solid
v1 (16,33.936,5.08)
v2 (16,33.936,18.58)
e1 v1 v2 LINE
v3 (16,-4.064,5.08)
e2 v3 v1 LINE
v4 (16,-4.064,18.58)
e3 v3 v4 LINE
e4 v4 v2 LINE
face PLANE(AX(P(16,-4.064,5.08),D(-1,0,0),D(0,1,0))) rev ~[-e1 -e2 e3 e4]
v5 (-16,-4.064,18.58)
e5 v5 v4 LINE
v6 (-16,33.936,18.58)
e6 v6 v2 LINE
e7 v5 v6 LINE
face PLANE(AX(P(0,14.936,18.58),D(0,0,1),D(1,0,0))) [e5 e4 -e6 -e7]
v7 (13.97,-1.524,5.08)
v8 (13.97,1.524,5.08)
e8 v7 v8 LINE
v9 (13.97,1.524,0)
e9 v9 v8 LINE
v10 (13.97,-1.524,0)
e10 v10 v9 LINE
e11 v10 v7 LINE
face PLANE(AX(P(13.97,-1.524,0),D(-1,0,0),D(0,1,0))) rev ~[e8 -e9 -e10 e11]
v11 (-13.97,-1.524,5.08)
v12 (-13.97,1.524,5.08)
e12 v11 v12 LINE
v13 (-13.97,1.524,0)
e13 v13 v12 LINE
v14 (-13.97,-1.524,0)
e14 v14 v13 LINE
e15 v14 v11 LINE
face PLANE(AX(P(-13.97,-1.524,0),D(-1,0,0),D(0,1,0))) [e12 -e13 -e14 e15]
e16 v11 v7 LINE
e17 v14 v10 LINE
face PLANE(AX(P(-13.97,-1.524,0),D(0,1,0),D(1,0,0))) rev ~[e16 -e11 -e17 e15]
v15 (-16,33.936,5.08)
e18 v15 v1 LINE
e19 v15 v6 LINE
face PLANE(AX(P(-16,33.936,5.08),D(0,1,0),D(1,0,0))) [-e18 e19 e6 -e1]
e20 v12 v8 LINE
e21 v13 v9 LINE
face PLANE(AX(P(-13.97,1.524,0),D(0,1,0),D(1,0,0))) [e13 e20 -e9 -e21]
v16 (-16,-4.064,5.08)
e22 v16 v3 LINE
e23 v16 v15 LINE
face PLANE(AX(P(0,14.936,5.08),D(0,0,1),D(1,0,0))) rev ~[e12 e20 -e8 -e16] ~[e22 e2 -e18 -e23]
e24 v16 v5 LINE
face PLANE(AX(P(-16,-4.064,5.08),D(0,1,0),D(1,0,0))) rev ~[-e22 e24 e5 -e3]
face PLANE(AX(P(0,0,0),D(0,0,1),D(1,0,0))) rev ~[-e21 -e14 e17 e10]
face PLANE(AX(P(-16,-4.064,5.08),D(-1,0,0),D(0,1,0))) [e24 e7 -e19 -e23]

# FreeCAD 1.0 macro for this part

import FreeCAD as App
import Part
import Sketcher

V = App.Vector
Q = App.Units.Quantity

doc = App.newDocument("Part")
body = doc.addObject("PartDesign::Body", "Body")

# Sketch on XY plane
sketch1 = body.newObject("Sketcher::SketchObject", "Sketch")
sketch1.AttachmentSupport = (doc.getObject("XY_Plane"), [""])
sketch1.MapMode = "FlatFace"
sketch1.addGeometry([
    Part.LineSegment(V(-14, 1.5, 0), V(-14, -1.5, 0)),
    Part.LineSegment(V(-14, -1.5, 0), V(14, -1.5, 0)),
    Part.LineSegment(V(14, -1.5, 0), V(14, 1.5, 0)),
    Part.LineSegment(V(14, 1.5, 0), V(-14, 1.5, 0)),
], False)
sketch1.addConstraint([
    Sketcher.Constraint("Coincident", 0, 2, 1, 1),
    Sketcher.Constraint("Coincident", 1, 2, 2, 1),
    Sketcher.Constraint("Coincident", 2, 2, 3, 1),
    Sketcher.Constraint("Coincident", 3, 2, 0, 1),
    Sketcher.Constraint("Vertical", 0),
    Sketcher.Constraint("Horizontal", 1),
    Sketcher.Constraint("Vertical", 2),
    Sketcher.Constraint("Horizontal", 3),
    Sketcher.Constraint("Symmetric", 0, 2, 2, 2, -1, 1),
    Sketcher.Constraint("DistanceX", 1, 1, 1, 2, Q("27.94 mm")),
    Sketcher.Constraint("DistanceY", 0, 2, 0, 1, Q("3.048 mm")),
])
pad1 = body.newObject("PartDesign::Pad", "Pad")
pad1.Profile = sketch1
pad1.Length = 5.08

# Sketch on XY plane
sketch2 = body.newObject("Sketcher::SketchObject", "Sketch001")
sketch2.AttachmentSupport = (doc.getObject("XY_Plane"), [""])
sketch2.MapMode = "FlatFace"
sketch2.AttachmentOffset = App.Placement(V(0, 0, 5.08), App.Rotation())
sketch2.addGeometry([
    Part.LineSegment(V(-16, 34, 0), V(-16, -4, 0)),
    Part.LineSegment(V(-16, -4, 0), V(16, -4, 0)),
    Part.LineSegment(V(16, -4, 0), V(16, 34, 0)),
    Part.LineSegment(V(16, 34, 0), V(-16, 34, 0)),
], False)
sketch2.addConstraint([
    Sketcher.Constraint("Coincident", 0, 2, 1, 1),
    Sketcher.Constraint("Coincident", 1, 2, 2, 1),
    Sketcher.Constraint("Coincident", 2, 2, 3, 1),
    Sketcher.Constraint("Coincident", 3, 2, 0, 1),
    Sketcher.Constraint("Vertical", 0),
    Sketcher.Constraint("Horizontal", 1),
    Sketcher.Constraint("Vertical", 2),
    Sketcher.Constraint("Horizontal", 3),
    Sketcher.Constraint("DistanceX", 1, 1, 1, 2, Q("32 mm")),
    Sketcher.Constraint("DistanceY", 0, 2, 0, 1, Q("38 mm")),
    Sketcher.Constraint("DistanceX", 0, 2, -1, 1, Q("16 mm")),
    Sketcher.Constraint("DistanceY", 0, 2, -1, 1, Q("4.064 mm")),
])
pad2 = body.newObject("PartDesign::Pad", "Pad001")
pad2.Profile = sketch2
pad2.Length = 13.5

doc.recompute()
